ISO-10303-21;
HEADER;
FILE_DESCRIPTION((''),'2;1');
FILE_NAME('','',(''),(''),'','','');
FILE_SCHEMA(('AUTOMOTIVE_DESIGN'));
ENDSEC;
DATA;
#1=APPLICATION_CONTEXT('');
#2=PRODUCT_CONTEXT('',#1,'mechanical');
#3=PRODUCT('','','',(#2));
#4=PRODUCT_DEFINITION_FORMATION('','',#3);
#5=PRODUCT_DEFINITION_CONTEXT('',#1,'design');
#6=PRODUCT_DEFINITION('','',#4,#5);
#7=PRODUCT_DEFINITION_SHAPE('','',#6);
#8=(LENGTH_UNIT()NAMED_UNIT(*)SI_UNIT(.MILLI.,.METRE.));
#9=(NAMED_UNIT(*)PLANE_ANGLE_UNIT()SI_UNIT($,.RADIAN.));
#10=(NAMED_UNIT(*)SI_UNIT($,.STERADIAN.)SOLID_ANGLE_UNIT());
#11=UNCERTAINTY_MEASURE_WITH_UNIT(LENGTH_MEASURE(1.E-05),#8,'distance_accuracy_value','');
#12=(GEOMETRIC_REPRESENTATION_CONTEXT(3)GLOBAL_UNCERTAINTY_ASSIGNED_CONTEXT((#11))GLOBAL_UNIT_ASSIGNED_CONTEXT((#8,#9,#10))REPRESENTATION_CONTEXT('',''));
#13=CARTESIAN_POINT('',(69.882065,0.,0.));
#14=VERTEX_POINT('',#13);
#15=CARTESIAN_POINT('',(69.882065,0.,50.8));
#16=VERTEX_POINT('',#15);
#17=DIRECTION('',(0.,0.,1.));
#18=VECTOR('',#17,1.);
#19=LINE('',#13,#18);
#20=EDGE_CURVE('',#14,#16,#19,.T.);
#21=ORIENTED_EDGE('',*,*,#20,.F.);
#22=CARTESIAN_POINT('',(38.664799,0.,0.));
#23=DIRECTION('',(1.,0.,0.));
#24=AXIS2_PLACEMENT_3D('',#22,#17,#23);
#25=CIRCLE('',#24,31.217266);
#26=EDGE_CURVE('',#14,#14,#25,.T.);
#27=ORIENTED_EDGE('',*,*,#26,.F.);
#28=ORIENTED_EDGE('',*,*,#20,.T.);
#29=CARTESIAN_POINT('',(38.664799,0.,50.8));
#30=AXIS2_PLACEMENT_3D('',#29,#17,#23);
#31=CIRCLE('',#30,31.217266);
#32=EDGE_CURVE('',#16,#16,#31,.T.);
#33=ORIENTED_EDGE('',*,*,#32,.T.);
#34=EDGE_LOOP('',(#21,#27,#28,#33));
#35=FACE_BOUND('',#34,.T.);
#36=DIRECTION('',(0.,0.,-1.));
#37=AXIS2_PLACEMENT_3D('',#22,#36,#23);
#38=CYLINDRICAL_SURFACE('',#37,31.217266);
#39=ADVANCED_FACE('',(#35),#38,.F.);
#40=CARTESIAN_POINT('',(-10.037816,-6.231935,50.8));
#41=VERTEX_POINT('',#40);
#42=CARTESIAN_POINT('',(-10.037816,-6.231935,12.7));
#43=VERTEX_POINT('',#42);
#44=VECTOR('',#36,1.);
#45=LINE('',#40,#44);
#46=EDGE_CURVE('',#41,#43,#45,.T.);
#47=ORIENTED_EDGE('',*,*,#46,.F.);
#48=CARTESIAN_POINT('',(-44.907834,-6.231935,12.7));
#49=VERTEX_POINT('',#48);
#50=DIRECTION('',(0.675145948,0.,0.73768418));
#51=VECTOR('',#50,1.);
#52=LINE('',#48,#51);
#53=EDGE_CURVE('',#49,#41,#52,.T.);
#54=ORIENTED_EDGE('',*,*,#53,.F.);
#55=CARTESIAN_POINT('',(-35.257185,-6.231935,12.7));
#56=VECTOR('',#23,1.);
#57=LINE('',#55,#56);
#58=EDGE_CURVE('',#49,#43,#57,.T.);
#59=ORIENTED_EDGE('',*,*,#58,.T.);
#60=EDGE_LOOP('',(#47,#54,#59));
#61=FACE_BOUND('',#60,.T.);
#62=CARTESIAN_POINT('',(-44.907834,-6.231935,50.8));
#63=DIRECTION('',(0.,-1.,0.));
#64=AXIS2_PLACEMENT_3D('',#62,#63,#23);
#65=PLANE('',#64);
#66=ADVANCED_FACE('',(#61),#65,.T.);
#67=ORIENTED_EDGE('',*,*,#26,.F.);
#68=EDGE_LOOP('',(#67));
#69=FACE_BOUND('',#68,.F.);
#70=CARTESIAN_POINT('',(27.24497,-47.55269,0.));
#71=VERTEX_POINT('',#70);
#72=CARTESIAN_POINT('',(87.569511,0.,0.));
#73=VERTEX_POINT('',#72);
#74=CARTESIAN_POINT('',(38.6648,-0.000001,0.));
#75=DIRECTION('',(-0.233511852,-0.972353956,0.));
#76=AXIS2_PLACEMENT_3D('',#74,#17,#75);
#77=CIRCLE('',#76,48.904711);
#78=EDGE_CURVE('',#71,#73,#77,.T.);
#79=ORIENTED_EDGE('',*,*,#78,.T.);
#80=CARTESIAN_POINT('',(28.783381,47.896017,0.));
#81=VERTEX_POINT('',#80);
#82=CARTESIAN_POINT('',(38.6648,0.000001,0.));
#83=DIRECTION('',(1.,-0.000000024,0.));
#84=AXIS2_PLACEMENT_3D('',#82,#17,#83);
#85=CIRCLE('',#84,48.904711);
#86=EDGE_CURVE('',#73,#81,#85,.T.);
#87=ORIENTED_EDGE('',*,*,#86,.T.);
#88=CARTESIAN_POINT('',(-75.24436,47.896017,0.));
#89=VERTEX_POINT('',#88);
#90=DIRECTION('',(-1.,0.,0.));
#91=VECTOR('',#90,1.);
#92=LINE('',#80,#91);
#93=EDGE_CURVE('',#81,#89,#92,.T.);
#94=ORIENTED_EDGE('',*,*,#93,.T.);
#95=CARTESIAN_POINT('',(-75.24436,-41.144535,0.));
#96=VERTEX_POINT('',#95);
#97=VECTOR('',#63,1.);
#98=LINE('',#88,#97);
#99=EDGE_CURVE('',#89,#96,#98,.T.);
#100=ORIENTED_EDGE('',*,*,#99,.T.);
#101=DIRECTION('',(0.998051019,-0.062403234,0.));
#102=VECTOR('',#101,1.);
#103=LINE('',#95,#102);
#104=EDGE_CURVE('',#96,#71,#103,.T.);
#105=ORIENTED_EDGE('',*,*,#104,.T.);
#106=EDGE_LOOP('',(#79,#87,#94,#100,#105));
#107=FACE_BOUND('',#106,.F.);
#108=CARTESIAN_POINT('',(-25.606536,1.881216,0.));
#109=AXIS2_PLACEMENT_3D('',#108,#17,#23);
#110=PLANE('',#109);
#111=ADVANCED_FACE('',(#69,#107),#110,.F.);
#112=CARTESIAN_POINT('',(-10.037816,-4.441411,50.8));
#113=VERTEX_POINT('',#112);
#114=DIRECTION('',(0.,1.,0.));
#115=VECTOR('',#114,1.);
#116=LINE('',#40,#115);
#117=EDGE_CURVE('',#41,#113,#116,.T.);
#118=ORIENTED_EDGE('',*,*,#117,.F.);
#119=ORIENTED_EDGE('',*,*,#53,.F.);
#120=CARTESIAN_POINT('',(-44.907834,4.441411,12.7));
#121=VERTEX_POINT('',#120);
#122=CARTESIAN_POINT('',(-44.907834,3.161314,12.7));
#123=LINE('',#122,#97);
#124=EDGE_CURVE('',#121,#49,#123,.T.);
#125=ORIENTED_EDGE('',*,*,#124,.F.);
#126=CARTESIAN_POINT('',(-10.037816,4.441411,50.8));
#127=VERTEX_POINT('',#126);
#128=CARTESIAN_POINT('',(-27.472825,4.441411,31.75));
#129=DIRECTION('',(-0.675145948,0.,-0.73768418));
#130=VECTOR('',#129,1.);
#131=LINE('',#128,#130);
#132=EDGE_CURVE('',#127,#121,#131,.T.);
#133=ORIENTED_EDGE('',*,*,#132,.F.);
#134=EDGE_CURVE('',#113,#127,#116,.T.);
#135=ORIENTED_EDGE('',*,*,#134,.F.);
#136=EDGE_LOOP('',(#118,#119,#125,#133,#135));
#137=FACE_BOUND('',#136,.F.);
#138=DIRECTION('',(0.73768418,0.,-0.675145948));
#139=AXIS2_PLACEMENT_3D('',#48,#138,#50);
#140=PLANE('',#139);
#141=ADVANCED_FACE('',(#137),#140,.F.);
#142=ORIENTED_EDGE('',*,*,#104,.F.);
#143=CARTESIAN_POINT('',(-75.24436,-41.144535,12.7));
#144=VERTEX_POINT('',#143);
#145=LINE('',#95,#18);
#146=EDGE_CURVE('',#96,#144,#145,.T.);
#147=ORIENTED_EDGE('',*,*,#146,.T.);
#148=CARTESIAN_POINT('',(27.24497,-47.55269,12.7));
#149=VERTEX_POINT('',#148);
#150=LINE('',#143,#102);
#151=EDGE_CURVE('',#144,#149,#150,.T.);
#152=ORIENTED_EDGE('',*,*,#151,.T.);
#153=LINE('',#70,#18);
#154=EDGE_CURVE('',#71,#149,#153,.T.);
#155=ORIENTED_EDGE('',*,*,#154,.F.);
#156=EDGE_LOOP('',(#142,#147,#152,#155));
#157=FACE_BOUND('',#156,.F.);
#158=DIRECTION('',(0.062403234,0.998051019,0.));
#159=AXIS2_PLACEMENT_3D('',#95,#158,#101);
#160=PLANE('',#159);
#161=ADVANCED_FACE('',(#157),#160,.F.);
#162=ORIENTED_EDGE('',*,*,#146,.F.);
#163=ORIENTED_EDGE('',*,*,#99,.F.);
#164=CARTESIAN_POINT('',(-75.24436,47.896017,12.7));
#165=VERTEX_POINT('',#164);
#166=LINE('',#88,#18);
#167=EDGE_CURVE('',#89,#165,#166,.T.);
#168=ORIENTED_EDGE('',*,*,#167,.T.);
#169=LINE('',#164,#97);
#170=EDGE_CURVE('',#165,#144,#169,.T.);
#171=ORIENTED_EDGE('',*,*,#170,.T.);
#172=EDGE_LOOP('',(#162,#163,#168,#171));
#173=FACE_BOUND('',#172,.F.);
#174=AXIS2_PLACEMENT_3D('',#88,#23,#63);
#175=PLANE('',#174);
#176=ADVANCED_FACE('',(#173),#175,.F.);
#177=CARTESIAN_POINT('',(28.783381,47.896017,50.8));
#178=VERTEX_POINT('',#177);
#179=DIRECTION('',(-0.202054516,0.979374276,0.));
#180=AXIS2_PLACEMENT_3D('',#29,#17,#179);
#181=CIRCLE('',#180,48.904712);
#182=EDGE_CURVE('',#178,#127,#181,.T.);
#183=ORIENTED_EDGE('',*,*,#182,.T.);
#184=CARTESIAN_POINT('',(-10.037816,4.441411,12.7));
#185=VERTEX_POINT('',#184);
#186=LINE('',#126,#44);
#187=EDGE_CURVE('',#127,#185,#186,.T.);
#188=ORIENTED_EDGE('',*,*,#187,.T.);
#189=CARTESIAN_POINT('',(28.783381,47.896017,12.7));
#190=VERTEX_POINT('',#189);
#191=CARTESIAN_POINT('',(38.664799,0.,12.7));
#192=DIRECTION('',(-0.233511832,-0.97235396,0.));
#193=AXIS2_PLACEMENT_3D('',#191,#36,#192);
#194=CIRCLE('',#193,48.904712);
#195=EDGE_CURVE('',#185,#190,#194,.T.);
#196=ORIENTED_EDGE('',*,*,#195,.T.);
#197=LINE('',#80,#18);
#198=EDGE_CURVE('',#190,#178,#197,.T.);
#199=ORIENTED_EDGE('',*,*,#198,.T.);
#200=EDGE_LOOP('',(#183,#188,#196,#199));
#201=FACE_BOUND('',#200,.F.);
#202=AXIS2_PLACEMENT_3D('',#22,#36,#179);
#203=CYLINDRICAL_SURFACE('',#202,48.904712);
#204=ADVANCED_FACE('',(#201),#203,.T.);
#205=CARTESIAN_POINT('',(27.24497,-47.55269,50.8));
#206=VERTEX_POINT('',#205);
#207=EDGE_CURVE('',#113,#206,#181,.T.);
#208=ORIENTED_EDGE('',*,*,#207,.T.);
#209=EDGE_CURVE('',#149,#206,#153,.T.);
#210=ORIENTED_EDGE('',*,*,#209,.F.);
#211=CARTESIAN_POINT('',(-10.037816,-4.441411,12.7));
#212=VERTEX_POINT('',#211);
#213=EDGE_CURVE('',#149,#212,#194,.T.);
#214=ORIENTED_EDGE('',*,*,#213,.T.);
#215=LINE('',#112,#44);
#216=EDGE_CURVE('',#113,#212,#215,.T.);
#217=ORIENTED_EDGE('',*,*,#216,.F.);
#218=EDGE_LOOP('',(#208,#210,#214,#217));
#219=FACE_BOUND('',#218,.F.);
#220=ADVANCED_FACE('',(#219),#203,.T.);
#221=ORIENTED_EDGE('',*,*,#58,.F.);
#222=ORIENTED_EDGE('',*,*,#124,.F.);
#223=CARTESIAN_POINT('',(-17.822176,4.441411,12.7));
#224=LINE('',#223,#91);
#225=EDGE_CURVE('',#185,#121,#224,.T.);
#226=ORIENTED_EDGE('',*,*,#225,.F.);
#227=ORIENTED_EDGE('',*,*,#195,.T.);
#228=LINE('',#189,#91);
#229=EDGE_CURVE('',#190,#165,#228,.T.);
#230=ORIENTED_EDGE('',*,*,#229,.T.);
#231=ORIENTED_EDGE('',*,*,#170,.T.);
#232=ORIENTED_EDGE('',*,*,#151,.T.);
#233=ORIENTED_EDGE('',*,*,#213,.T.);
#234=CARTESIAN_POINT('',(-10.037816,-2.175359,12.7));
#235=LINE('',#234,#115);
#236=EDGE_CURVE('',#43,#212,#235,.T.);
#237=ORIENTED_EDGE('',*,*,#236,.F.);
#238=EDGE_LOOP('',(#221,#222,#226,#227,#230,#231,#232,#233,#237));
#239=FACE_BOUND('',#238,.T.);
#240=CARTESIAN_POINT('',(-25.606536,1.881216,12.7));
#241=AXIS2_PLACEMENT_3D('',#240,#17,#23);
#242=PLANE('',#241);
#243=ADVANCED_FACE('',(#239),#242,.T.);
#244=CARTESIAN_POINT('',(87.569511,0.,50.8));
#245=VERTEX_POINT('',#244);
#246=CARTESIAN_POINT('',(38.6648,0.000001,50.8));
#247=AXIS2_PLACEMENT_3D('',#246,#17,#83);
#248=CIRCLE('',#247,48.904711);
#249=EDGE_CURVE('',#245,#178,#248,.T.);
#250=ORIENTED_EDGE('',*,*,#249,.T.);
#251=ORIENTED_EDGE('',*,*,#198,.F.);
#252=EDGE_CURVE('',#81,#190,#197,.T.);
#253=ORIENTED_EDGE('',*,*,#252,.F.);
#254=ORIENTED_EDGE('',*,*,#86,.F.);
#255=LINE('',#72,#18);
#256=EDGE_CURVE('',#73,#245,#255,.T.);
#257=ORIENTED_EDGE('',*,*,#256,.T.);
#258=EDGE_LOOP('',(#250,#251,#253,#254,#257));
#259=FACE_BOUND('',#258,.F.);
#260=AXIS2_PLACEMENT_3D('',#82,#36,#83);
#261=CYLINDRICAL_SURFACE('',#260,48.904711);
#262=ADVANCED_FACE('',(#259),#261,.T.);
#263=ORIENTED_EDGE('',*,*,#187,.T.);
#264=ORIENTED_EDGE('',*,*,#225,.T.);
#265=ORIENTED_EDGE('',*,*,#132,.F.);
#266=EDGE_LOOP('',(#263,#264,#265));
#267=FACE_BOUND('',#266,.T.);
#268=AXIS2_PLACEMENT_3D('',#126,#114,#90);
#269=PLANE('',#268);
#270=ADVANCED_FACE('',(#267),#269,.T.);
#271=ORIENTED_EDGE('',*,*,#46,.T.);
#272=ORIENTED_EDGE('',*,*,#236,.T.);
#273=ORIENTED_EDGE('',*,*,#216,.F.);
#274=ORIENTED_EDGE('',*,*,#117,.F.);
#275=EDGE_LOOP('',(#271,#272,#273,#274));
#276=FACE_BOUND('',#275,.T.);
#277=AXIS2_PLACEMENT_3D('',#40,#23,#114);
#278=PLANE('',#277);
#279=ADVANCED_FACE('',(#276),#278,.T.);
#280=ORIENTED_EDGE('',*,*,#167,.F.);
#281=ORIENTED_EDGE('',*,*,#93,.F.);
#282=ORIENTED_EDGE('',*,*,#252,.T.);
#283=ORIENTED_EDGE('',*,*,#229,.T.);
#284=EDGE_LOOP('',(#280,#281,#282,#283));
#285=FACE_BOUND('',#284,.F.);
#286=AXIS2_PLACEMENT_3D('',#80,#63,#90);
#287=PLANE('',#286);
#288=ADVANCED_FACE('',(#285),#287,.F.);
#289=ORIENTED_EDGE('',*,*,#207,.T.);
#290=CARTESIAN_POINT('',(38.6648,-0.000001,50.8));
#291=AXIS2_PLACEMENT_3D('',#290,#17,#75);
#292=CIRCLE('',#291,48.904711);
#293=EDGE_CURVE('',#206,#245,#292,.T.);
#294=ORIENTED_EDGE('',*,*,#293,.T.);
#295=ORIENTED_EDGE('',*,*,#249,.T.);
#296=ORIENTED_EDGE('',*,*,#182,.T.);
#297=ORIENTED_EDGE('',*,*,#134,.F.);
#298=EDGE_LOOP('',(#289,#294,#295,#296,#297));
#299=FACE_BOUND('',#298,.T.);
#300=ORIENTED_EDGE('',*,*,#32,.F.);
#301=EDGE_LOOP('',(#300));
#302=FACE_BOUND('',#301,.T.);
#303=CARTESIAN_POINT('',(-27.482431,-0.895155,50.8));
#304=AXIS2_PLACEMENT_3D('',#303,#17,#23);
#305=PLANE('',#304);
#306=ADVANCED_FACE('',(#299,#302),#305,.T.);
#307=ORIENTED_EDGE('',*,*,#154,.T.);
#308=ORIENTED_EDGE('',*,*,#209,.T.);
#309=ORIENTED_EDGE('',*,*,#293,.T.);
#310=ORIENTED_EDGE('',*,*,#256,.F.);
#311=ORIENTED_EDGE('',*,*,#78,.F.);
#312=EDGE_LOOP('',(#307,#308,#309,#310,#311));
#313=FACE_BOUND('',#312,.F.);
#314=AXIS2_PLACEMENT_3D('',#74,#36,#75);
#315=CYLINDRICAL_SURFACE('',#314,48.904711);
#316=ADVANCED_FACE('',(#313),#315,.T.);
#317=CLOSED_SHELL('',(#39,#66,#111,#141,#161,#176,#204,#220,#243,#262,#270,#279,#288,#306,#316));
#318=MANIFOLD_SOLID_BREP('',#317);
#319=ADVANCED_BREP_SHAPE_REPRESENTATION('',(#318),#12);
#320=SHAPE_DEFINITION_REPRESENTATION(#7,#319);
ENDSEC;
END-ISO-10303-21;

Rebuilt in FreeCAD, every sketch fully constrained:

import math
import FreeCAD as App
import Part
import Sketcher
Q = App.Units.Quantity

doc = App.newDocument("Part")
body = doc.addObject("PartDesign::Body", "Body")

sketch1 = body.newObject("Sketcher::SketchObject", "Sketch")
sketch1.AttachmentSupport = (doc.getObject("XY_Plane"), [""])
sketch1.MapMode = "FlatFace"
sketch1.addGeometry([
    Part.ArcOfCircle(Part.Circle(App.Vector(38.6648, -0.000001, 0), App.Vector(0, 0, 1), 48.904711), math.radians(-103.503918), math.radians(0.000001)),
    Part.ArcOfCircle(Part.Circle(App.Vector(38.6648, 0.000001, 0), App.Vector(0, 0, 1), 48.904711), math.radians(-0.000001), math.radians(101.657129)),
    Part.ArcOfCircle(Part.Circle(App.Vector(38.664799, 0, 0), App.Vector(0, 0, 1), 48.904712), math.radians(101.657127), math.radians(256.496083)),
    Part.Circle(App.Vector(38.664799, 0, 0), App.Vector(0, 0, 1), 31.217266),
], False)
sketch1.addConstraint([
    Sketcher.Constraint("Tangent", 0, 2, 1, 1),
    Sketcher.Constraint("Tangent", 1, 2, 2, 1),
    Sketcher.Constraint("Tangent", 2, 2, 0, 1),
    Sketcher.Constraint("Coincident", 3, 3, 0, 3),
    Sketcher.Constraint("PointOnObject", 0, 3, -1),
    Sketcher.Constraint("PointOnObject", 0, 2, -1),
    Sketcher.Constraint("Diameter", 3, Q("62.434532 mm")),
    Sketcher.Constraint("Radius", 0, Q("48.904711 mm")),
    Sketcher.Constraint("DistanceX", -1, 1, 0, 3, Q("38.6648 mm")),
    Sketcher.Constraint("DistanceX", -1, 1, 1, 2, Q("28.783381 mm")),
    Sketcher.Constraint("DistanceX", -1, 1, 2, 2, Q("27.24497 mm")),
])
pad1 = body.newObject("PartDesign::Pad", "Pad")
pad1.Profile = sketch1
pad1.Length = Q("2 in")

sketch2 = body.newObject("Sketcher::SketchObject", "Sketch001")
sketch2.AttachmentSupport = (doc.getObject("XY_Plane"), [""])
sketch2.MapMode = "FlatFace"
sketch2.addGeometry([
    Part.ArcOfCircle(Part.Circle(App.Vector(38.664799, 0, 0), App.Vector(0, 0, 1), 48.904712), math.radians(101.657127), math.radians(256.496083)),
    Part.LineSegment(App.Vector(28.783381, 47.896017, 0), App.Vector(-75.24436, 47.896017, 0)),
    Part.LineSegment(App.Vector(-75.24436, 47.896017, 0), App.Vector(-75.24436, -41.144535, 0)),
    Part.LineSegment(App.Vector(-75.24436, -41.144535, 0), App.Vector(27.24497, -47.55269, 0)),
], False)
sketch2.addConstraint([
    Sketcher.Constraint("Coincident", 0, 1, 1, 1),
    Sketcher.Constraint("Coincident", 1, 2, 2, 1),
    Sketcher.Constraint("Coincident", 2, 2, 3, 1),
    Sketcher.Constraint("Coincident", 3, 2, 0, 2),
    Sketcher.Constraint("Horizontal", 1),
    Sketcher.Constraint("Vertical", 2),
    Sketcher.Constraint("PointOnObject", 0, 3, -1),
    Sketcher.Constraint("Radius", 0, Q("48.904712 mm")),
    Sketcher.Constraint("DistanceX", 1, 2, 1, 1, Q("104.027741 mm")),
    Sketcher.Constraint("DistanceY", 2, 2, 2, 1, Q("89.040552 mm")),
    Sketcher.Constraint("DistanceX", -1, 1, 0, 3, Q("38.664799 mm")),
    Sketcher.Constraint("Distance", 3, Q("102.68947 mm")),
    Sketcher.Constraint("DistanceX", -1, 1, 0, 1, Q("28.783381 mm")),
])
pad2 = body.newObject("PartDesign::Pad", "Pad001")
pad2.Profile = sketch2
pad2.Length = Q("0.5 in")

sketch3 = body.newObject("Sketcher::SketchObject", "Sketch002")
sketch3.AttachmentSupport = (doc.getObject("XY_Plane"), [""])
sketch3.MapMode = "FlatFace"
sketch3.AttachmentOffset = App.Placement(App.Vector(0, 0, 2 * 25.4), App.Rotation())
sketch3.addGeometry([
    Part.ArcOfCircle(Part.Circle(App.Vector(38.664759, 0, 0), App.Vector(0, 0, 1), 48.904672), math.radians(174.789348), math.radians(185.210652)),
    Part.LineSegment(App.Vector(-10.037816, 4.441411, 0), App.Vector(-44.907834, 4.441411, 0)),
    Part.LineSegment(App.Vector(-44.907834, 4.441411, 0), App.Vector(-44.907834, -6.231935, 0)),
    Part.LineSegment(App.Vector(-44.907834, -6.231935, 0), App.Vector(-10.037816, -6.231935, 0)),
    Part.LineSegment(App.Vector(-10.037816, -6.231935, 0), App.Vector(-10.037816, -4.441411, 0)),
], False)
sketch3.addConstraint([
    Sketcher.Constraint("Coincident", 0, 1, 1, 1),
    Sketcher.Constraint("Coincident", 1, 2, 2, 1),
    Sketcher.Constraint("Coincident", 2, 2, 3, 1),
    Sketcher.Constraint("Coincident", 3, 2, 4, 1),
    Sketcher.Constraint("Coincident", 4, 2, 0, 2),
    Sketcher.Constraint("Horizontal", 1),
    Sketcher.Constraint("Vertical", 2),
    Sketcher.Constraint("Horizontal", 3),
    Sketcher.Constraint("Vertical", 4),
    Sketcher.Constraint("Symmetric", 0, 1, 4, 2, -1),
    Sketcher.Constraint("Radius", 0, Q("48.904672 mm")),
    Sketcher.Constraint("DistanceX", 1, 2, 1, 1, Q("34.870018 mm")),
    Sketcher.Constraint("DistanceY", 2, 2, 2, 1, Q("10.673346 mm")),
    Sketcher.Constraint("DistanceY", 4, 1, 4, 2, Q("1.790524 mm")),
    Sketcher.Constraint("DistanceX", -1, 1, 0, 3, Q("38.664759 mm")),
])
pad3 = body.newObject("PartDesign::Pad", "Pad002")
pad3.Profile = sketch3
pad3.Length = Q("1.53 in")
pad3.Reversed = True

sketch4 = body.newObject("Sketcher::SketchObject", "Sketch003")
sketch4.AttachmentSupport = (doc.getObject("XZ_Plane"), [""])
sketch4.MapMode = "FlatFace"
sketch4.AttachmentOffset = App.Placement(App.Vector(0, 0, 6.231935), App.Rotation())
sketch4.addGeometry([
    Part.LineSegment(App.Vector(-44.907834, 50.8, 0), App.Vector(-44.907834, 12.7, 0)),
    Part.LineSegment(App.Vector(-44.907834, 12.7, 0), App.Vector(-10.037816, 50.8, 0)),
    Part.LineSegment(App.Vector(-10.037816, 50.8, 0), App.Vector(-44.907834, 50.8, 0)),
], False)
sketch4.addConstraint([
    Sketcher.Constraint("Coincident", 0, 2, 1, 1),
    Sketcher.Constraint("Coincident", 1, 2, 2, 1),
    Sketcher.Constraint("Coincident", 2, 2, 0, 1),
    Sketcher.Constraint("Vertical", 0),
    Sketcher.Constraint("Horizontal", 2),
    Sketcher.Constraint("DistanceY", 0, 2, 0, 1, Q("1.5 in")),
    Sketcher.Constraint("DistanceY", -1, 1, 1, 2, Q("2 in")),
    Sketcher.Constraint("DistanceX", 2, 2, 2, 1, Q("34.870018 mm")),
    Sketcher.Constraint("DistanceX", 0, 2, -1, 1, Q("44.907834 mm")),
])
pocket1 = body.newObject("PartDesign::Pocket", "Pocket")
pocket1.Profile = sketch4
pocket1.Length = Q("7 in")

doc.recompute()
